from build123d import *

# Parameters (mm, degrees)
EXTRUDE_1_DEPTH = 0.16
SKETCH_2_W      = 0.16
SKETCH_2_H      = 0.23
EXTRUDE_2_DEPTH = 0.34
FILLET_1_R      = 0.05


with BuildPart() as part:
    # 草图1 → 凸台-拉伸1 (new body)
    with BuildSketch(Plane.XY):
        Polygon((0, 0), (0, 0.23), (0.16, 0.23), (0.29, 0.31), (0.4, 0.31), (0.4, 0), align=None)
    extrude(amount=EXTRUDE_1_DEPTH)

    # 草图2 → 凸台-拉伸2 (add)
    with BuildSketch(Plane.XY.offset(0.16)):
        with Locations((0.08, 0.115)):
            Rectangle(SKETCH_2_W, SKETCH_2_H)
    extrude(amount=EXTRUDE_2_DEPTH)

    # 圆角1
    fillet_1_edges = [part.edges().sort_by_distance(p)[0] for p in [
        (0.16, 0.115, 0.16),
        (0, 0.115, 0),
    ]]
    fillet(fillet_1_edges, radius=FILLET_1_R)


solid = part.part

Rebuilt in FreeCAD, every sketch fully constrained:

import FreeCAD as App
import Part
import Sketcher


def edges_at(feature, points):
    """Names of the edges that pass closest to the given points."""
    edges = feature.Shape.Edges
    near = lambda p: min(range(len(edges)), key=lambda i: edges[i].distToShape(Part.Vertex(*p))[0])
    return sorted({f"Edge{near(p) + 1}" for p in points})

doc = App.newDocument("Part")
body = doc.addObject("PartDesign::Body", "Body")

# Sketch on XY plane
sketch1 = doc.addObject("Sketcher::SketchObject", "Sketch")
body.addObject(sketch1)
sketch1.AttachmentSupport = (doc.XY_Plane, [""])
sketch1.MapMode = "FlatFace"
sketch1.addGeometry([
    Part.LineSegment(App.Vector(0, 0.23, 0), App.Vector(0, 0, 0)),  # 0
    Part.LineSegment(App.Vector(0, 0, 0), App.Vector(0.4, 0, 0)),  # 1
    Part.LineSegment(App.Vector(0.4, 0, 0), App.Vector(0.4, 0.31, 0)),  # 2
    Part.LineSegment(App.Vector(0.4, 0.31, 0), App.Vector(0.29, 0.31, 0)),  # 3
    Part.LineSegment(App.Vector(0.29, 0.31, 0), App.Vector(0.16, 0.23, 0)),  # 4
    Part.LineSegment(App.Vector(0.16, 0.23, 0), App.Vector(0, 0.23, 0)),  # 5
], False)
sketch1.addConstraint([
    Sketcher.Constraint("Coincident", 0, 2, 1, 1),
    Sketcher.Constraint("Coincident", 1, 2, 2, 1),
    Sketcher.Constraint("Coincident", 2, 2, 3, 1),
    Sketcher.Constraint("Coincident", 3, 2, 4, 1),
    Sketcher.Constraint("Coincident", 4, 2, 5, 1),
    Sketcher.Constraint("Coincident", 5, 2, 0, 1),
    Sketcher.Constraint("Vertical", 0),
    Sketcher.Constraint("Horizontal", 1),
    Sketcher.Constraint("Vertical", 2),
    Sketcher.Constraint("Horizontal", 3),
    Sketcher.Constraint("Horizontal", 5),
    Sketcher.Constraint("Coincident", 0, 2, -1, 1),
    Sketcher.Constraint("DistanceX", 1, 1, 1, 2, 0.4),
    Sketcher.Constraint("DistanceX", 3, 2, 3, 1, 0.11),
    Sketcher.Constraint("DistanceX", 5, 2, 5, 1, 0.16),
    Sketcher.Constraint("DistanceY", 0, 2, 0, 1, 0.23),
    Sketcher.Constraint("DistanceY", 2, 1, 2, 2, 0.31),
])
pad1 = doc.addObject("PartDesign::Pad", "Pad")
body.addObject(pad1)
pad1.Profile = sketch1
pad1.Length = 0.16

# Sketch on XY plane
sketch2 = doc.addObject("Sketcher::SketchObject", "Sketch001")
body.addObject(sketch2)
sketch2.AttachmentSupport = (doc.XY_Plane, [""])
sketch2.MapMode = "FlatFace"
sketch2.AttachmentOffset = App.Placement(App.Vector(0, 0, 0.16), App.Rotation())
sketch2.addGeometry([
    Part.LineSegment(App.Vector(0, 0.23, 0), App.Vector(0, 0, 0)),
    Part.LineSegment(App.Vector(0, 0, 0), App.Vector(0.16, 0, 0)),
    Part.LineSegment(App.Vector(0.16, 0, 0), App.Vector(0.16, 0.23, 0)),
    Part.LineSegment(App.Vector(0.16, 0.23, 0), App.Vector(0, 0.23, 0)),
], False)
sketch2.addConstraint([
    Sketcher.Constraint("Coincident", 0, 2, 1, 1),
    Sketcher.Constraint("Coincident", 1, 2, 2, 1),
    Sketcher.Constraint("Coincident", 2, 2, 3, 1),
    Sketcher.Constraint("Coincident", 3, 2, 0, 1),
    Sketcher.Constraint("Vertical", 0),
    Sketcher.Constraint("Horizontal", 1),
    Sketcher.Constraint("Vertical", 2),
    Sketcher.Constraint("Horizontal", 3),
    Sketcher.Constraint("Coincident", 0, 2, -1, 1),
    Sketcher.Constraint("DistanceX", 1, 1, 1, 2, 0.16),
    Sketcher.Constraint("DistanceY", 0, 2, 0, 1, 0.23),
])
pad2 = doc.addObject("PartDesign::Pad", "Pad001")
body.addObject(pad2)
pad2.Profile = sketch2
pad2.Length = 0.34
doc.recompute()

fillet = doc.addObject("PartDesign::Fillet", "Fillet")
body.addObject(fillet)
fillet.Base = (pad2, edges_at(pad2, [(0.16, 0.115, 0.16), (0, 0.115, 0)]))
fillet.Radius = 0.05

doc.recompute()
